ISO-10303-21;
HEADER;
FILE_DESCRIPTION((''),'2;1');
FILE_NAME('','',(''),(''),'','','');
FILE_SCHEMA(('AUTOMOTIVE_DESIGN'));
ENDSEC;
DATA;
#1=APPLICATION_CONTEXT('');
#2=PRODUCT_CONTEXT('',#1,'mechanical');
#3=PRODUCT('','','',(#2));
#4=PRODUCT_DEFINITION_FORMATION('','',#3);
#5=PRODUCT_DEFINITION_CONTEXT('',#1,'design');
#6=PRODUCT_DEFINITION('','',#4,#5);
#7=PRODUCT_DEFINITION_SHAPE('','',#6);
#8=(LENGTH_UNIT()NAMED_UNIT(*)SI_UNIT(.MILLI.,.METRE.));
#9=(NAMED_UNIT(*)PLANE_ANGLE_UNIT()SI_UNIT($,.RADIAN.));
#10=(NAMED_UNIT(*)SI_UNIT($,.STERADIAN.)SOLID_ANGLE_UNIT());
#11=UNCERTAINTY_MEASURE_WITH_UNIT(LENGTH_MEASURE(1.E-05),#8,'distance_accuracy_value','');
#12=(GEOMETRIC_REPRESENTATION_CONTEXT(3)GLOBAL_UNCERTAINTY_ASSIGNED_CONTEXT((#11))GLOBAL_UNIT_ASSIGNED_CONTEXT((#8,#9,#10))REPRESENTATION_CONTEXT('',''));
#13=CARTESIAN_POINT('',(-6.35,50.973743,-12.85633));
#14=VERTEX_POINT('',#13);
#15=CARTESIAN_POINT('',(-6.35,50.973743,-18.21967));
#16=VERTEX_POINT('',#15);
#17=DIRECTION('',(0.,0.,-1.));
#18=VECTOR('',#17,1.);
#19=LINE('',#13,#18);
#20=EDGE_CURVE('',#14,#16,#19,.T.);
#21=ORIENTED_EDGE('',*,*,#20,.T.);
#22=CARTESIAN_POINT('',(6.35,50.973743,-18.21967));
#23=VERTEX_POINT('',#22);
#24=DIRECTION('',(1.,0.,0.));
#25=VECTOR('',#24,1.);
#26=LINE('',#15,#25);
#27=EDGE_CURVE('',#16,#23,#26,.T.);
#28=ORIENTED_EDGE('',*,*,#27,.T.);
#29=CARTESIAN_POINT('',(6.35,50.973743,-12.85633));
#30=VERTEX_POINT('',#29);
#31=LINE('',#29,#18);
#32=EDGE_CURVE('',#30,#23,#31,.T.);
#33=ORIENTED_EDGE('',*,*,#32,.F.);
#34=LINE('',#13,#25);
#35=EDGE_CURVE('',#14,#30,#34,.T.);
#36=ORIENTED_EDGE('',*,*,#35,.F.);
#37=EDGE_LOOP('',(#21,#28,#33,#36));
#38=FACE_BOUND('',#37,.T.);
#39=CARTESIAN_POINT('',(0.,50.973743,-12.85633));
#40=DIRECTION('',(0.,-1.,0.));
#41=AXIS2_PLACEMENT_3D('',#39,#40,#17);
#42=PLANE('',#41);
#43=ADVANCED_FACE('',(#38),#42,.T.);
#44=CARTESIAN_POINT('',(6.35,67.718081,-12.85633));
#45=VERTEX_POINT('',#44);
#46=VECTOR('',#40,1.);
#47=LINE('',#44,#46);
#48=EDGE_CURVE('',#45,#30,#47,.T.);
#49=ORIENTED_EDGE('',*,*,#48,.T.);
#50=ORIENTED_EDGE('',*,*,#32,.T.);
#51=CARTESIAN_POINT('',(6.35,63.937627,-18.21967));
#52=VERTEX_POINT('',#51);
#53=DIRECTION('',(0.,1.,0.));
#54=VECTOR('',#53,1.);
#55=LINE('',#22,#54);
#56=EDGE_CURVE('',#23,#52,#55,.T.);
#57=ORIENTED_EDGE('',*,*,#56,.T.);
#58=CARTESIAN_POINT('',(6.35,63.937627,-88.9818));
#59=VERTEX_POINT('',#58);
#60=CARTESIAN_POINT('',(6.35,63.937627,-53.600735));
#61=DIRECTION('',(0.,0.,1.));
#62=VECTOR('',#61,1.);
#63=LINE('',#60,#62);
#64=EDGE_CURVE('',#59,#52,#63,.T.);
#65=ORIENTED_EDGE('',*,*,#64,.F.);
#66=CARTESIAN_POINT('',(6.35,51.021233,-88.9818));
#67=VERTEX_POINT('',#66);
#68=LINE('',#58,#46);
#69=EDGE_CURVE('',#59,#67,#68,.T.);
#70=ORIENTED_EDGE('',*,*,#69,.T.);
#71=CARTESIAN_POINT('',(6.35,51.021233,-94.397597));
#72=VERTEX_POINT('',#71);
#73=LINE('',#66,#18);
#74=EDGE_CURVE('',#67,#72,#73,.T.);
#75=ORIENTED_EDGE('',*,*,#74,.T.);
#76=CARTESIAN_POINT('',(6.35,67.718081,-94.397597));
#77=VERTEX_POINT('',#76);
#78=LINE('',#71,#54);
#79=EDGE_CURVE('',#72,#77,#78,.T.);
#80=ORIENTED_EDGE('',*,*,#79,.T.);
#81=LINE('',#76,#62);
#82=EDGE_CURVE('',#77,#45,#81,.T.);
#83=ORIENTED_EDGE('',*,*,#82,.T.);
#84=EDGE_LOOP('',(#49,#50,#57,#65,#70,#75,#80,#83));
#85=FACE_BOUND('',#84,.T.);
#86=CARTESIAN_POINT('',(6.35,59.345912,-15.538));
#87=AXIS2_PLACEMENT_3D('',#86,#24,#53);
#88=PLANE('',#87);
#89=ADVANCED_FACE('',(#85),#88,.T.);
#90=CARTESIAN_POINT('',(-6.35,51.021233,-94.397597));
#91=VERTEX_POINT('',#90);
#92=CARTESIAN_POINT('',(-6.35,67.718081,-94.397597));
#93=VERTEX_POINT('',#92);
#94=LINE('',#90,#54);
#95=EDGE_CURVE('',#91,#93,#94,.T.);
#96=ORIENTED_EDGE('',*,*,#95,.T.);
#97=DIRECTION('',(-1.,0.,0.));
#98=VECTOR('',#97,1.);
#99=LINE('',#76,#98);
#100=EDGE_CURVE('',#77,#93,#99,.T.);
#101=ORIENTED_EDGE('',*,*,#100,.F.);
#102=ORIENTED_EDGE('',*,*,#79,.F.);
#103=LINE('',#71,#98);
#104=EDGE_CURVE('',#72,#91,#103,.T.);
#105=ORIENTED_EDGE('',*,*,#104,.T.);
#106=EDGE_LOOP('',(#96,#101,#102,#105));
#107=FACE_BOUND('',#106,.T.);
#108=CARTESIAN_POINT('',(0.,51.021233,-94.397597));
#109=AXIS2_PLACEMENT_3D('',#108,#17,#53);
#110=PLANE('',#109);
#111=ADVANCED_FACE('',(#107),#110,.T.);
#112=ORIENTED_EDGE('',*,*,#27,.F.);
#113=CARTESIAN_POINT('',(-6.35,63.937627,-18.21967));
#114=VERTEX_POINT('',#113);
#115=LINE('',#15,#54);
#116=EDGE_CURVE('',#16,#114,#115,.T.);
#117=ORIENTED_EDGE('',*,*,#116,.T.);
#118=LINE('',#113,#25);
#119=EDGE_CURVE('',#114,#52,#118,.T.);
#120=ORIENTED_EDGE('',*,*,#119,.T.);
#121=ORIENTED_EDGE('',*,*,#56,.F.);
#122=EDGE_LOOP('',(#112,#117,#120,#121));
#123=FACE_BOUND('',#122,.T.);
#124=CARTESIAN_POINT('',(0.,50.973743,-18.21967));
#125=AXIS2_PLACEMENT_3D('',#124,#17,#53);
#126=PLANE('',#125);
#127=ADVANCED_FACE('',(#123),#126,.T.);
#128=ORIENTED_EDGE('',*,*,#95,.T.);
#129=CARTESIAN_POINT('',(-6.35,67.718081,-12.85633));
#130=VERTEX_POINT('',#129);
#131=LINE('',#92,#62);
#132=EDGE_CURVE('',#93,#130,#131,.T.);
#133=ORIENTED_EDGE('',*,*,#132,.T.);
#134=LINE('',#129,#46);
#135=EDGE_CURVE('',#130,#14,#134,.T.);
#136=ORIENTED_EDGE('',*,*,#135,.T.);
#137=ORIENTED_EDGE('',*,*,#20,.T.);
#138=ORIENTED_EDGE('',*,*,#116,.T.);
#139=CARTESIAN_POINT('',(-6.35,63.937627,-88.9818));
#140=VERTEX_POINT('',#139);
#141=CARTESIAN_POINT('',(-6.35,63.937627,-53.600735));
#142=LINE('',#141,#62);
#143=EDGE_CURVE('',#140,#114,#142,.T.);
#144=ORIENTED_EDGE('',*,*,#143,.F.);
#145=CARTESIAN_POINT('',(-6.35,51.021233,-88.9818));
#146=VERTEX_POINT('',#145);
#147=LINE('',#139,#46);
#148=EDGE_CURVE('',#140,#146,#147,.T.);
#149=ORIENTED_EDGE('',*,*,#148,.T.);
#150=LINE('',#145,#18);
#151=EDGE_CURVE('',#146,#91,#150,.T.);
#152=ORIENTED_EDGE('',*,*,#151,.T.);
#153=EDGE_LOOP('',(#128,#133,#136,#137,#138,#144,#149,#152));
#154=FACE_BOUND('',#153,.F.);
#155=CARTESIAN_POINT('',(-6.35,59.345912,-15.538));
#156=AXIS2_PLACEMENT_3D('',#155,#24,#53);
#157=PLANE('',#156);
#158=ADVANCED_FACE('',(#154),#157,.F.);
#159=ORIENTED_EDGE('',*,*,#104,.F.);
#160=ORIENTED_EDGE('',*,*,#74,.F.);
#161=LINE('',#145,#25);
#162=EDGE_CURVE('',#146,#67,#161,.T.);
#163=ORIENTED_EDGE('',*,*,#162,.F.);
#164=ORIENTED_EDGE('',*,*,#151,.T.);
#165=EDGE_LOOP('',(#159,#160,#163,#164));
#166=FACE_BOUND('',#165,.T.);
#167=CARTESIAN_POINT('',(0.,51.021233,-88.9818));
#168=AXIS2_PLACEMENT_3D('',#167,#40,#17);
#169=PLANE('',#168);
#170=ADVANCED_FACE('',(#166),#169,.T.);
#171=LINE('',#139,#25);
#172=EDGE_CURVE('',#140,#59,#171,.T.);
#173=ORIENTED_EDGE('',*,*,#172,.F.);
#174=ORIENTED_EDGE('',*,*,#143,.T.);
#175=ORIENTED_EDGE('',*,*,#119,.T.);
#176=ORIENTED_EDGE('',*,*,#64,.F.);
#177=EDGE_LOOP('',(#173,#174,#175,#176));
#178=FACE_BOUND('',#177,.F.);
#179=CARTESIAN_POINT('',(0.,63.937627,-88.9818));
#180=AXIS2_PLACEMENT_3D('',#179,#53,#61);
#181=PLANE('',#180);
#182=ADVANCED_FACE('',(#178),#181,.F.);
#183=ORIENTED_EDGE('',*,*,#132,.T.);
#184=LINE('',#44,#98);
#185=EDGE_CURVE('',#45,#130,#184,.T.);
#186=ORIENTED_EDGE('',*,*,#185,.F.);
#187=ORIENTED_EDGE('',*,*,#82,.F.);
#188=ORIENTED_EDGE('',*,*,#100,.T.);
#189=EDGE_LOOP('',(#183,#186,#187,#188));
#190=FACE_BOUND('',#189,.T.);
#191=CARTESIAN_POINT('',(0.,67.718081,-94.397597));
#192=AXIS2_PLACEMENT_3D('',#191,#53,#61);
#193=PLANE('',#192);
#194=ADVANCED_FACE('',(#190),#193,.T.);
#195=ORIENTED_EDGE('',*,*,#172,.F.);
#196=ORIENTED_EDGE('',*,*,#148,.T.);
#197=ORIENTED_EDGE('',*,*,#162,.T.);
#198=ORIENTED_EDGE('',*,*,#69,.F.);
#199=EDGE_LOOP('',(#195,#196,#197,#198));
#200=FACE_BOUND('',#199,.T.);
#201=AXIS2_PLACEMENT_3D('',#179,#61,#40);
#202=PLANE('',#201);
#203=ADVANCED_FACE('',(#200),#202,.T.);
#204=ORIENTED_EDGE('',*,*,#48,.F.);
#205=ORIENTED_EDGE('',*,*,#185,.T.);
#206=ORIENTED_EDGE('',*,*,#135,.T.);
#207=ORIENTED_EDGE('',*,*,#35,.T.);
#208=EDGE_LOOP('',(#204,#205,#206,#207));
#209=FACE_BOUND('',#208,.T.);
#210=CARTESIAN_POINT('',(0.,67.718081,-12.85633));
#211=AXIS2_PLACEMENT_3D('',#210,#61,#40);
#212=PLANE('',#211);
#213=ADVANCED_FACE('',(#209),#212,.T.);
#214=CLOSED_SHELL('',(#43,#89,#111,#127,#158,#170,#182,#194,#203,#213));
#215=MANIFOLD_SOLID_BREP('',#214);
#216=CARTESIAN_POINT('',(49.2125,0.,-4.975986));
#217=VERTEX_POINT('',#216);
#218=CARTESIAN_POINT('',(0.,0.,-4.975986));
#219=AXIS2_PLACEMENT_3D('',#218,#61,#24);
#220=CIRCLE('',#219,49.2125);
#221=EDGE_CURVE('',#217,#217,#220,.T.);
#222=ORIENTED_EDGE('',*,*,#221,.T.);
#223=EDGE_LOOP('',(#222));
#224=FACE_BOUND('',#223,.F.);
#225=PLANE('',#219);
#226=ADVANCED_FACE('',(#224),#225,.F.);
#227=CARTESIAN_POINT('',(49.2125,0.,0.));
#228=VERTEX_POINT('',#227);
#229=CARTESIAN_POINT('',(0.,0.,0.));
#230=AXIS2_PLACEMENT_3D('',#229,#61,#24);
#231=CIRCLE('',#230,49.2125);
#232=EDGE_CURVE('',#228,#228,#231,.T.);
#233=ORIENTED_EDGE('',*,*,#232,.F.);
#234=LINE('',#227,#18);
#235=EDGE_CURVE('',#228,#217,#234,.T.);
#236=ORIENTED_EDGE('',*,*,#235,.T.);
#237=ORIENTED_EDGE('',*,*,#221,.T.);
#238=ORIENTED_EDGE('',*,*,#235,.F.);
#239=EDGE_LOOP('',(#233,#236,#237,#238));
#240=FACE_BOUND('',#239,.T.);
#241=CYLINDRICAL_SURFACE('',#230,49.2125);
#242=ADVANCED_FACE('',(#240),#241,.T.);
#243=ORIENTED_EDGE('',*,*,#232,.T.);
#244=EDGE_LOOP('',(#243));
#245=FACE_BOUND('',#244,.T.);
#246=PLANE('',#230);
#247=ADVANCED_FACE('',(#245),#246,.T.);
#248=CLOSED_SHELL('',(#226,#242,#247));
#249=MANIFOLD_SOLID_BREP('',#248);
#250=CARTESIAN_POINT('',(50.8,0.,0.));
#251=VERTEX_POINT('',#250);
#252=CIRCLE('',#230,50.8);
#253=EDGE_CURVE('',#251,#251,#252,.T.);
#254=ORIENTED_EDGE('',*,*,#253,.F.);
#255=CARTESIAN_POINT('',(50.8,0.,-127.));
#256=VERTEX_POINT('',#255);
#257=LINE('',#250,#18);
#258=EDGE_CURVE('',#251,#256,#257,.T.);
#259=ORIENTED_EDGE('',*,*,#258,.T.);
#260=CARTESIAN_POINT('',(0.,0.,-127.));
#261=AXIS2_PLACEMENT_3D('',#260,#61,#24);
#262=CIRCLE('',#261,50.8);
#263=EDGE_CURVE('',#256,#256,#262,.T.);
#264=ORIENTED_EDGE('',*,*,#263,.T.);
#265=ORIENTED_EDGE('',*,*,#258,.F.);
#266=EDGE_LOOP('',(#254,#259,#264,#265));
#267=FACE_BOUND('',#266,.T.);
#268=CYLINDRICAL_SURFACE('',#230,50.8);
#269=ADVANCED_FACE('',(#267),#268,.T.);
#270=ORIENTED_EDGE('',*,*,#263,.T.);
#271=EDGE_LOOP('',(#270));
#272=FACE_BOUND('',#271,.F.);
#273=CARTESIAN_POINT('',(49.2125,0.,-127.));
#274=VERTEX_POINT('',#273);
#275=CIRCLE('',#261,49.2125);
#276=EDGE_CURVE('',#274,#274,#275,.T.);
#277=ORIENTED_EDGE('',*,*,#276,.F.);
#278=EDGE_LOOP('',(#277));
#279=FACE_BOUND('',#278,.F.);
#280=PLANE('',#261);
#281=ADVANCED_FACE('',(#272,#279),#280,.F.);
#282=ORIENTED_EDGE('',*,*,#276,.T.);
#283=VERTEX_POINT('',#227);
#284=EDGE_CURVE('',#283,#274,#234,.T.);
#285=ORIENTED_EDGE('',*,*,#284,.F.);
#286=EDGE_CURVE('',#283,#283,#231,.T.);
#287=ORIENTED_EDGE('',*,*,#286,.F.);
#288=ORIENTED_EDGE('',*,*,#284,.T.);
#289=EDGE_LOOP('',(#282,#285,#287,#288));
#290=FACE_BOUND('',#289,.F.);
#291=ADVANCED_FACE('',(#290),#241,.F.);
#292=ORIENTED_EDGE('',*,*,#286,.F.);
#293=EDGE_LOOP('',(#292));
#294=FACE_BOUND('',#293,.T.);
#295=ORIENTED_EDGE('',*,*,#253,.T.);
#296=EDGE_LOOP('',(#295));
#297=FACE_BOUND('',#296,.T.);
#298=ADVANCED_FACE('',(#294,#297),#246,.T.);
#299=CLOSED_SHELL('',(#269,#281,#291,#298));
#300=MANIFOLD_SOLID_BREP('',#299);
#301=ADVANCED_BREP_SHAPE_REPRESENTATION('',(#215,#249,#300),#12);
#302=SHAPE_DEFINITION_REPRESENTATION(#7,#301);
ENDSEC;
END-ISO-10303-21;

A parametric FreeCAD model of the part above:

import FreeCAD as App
import Part
import Sketcher

V = App.Vector
Q = App.Units.Quantity


def add_polygon(sketch, points):
    """Adds a closed chain of lines whose ends are joined by coincident constraints."""
    first, n = sketch.GeometryCount, len(points)
    for a, b in zip(points, points[1:] + points[:1]):
        sketch.addGeometry(Part.LineSegment(App.Vector(*a, 0), App.Vector(*b, 0)), False)
    for i in range(n):
        sketch.addConstraint(Sketcher.Constraint("Coincident", first + i, 2, first + (i + 1) % n, 1))

doc = App.newDocument("Part")
params = doc.addObject("Spreadsheet::Sheet", "Params")
for row, (alias, value) in enumerate([
    ("sketch1_diameter", "4 in"),
    ("sketch1_diameter2", "3.875 in"),
    ("pad1_length", "5 in"),
    ("sketch2_diameter", "3.875 in"),
    ("pad2_length", "4.975986 mm"),
    ("pad3_length", "0.5 in"),
], start=1):
    params.set(f"A{row}", alias)
    params.set(f"B{row}", "=" + value)
    params.setAlias(f"B{row}", alias)

body = doc.addObject("PartDesign::Body", "Body")

# Sketch on XY plane
sketch1 = body.newObject("Sketcher::SketchObject", "Sketch")
sketch1.AttachmentSupport = (doc.getObject("XY_Plane"), [""])
sketch1.MapMode = "FlatFace"
sketch1.addGeometry([
    Part.Circle(V(0, 0, 0), V(0, 0, 1), 51),
    Part.Circle(V(0, 0, 0), V(0, 0, 1), 49),
], False)
sketch1.addConstraint([
    Sketcher.Constraint("Coincident", 0, 3, -1, 1),
    Sketcher.Constraint("Coincident", 1, 3, -1, 1),
    Sketcher.Constraint("Diameter", 0, Q("4 in")),
    Sketcher.Constraint("Diameter", 1, Q("3.875 in")),
])
sketch1.setExpression("Constraints[2]", "Params.sketch1_diameter")
sketch1.setExpression("Constraints[3]", "Params.sketch1_diameter2")
pad1 = body.newObject("PartDesign::Pad", "Pad")
pad1.Profile = sketch1
pad1.setExpression("Length", "Params.pad1_length")
pad1.Reversed = True
body2 = doc.addObject("PartDesign::Body", "Body001")

# Sketch on XY plane
sketch2 = body2.newObject("Sketcher::SketchObject", "Sketch001")
sketch2.AttachmentSupport = (doc.getObject("XY_Plane001"), [""])
sketch2.MapMode = "FlatFace"
sketch2.addGeometry(Part.Circle(V(0, 0, 0), V(0, 0, 1), 49), False)
sketch2.addConstraint([
    Sketcher.Constraint("Coincident", 0, 3, -1, 1),
    Sketcher.Constraint("Diameter", 0, Q("3.875 in")),
])
sketch2.setExpression("Constraints[1]", "Params.sketch2_diameter")
pad2 = body2.newObject("PartDesign::Pad", "Pad001")
pad2.Profile = sketch2
pad2.setExpression("Length", "Params.pad2_length")
pad2.Reversed = True
body3 = doc.addObject("PartDesign::Body", "Body002")

# Sketch on YZ plane
sketch3 = body3.newObject("Sketcher::SketchObject", "Sketch002")
sketch3.AttachmentSupport = (doc.getObject("YZ_Plane002"), [""])
sketch3.MapMode = "FlatFace"
add_polygon(sketch3, [(68, -13), (51, -13), (51, -18), (64, -18), (64, -89), (51, -89), (51, -94), (68, -94)])  # lines 0-7
sketch3.addConstraint([
    Sketcher.Constraint("Horizontal", 0),
    Sketcher.Constraint("Vertical", 1),
    Sketcher.Constraint("Horizontal", 2),
    Sketcher.Constraint("Vertical", 3),
    Sketcher.Constraint("Horizontal", 4),
    Sketcher.Constraint("Vertical", 5),
    Sketcher.Constraint("Horizontal", 6),
    Sketcher.Constraint("Vertical", 7),
    Sketcher.Constraint("DistanceY", 1, 2, 1, 1, 5.36334),
    Sketcher.Constraint("DistanceY", 3, 2, 3, 1, 70.76213),
    Sketcher.Constraint("DistanceY", 3, 2, -1, 1, 88.9818),
    Sketcher.Constraint("DistanceX", 0, 2, 0, 1, 16.744338),
    Sketcher.Constraint("DistanceX", 2, 1, 2, 2, 12.963884),
    Sketcher.Constraint("DistanceX", 4, 2, 4, 1, 12.916394),
    Sketcher.Constraint("DistanceY", 5, 2, 5, 1, 5.415797),
    Sketcher.Constraint("DistanceX", -1, 1, 6, 2, 67.718081),
])
pad3 = body3.newObject("PartDesign::Pad", "Pad002")
pad3.Profile = sketch3
pad3.setExpression("Length", "Params.pad3_length")
pad3.Midplane = True

doc.recompute()
